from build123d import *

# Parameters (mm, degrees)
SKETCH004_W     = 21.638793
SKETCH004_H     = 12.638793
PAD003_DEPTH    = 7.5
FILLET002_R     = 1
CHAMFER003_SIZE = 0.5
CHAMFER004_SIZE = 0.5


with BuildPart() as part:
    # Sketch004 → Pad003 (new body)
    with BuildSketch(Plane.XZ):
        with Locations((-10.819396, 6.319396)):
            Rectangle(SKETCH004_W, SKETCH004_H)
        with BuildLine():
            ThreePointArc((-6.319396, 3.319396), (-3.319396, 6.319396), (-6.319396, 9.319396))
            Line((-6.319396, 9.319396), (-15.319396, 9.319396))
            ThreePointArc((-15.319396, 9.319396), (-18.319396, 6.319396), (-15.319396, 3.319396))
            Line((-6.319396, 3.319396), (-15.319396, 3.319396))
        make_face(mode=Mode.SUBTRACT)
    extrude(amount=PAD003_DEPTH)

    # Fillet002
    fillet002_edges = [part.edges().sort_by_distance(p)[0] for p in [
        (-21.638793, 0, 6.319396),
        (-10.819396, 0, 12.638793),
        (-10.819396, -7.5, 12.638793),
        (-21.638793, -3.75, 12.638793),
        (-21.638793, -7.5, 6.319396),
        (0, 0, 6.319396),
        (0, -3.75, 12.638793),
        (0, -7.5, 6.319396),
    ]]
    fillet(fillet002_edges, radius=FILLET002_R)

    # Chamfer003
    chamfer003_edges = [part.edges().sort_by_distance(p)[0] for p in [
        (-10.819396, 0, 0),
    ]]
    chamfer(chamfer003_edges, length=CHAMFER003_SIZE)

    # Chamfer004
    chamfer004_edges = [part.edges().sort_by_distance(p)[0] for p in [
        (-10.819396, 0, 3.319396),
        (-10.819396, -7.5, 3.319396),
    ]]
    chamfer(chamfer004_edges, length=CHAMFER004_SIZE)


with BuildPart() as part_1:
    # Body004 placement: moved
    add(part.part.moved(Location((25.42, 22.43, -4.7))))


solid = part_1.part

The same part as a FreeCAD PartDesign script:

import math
import FreeCAD as App
import Part
import Sketcher
from FreeCAD import Vector
Q = App.Units.Quantity


def edges_at(feature, points):
    """Names of the edges that pass closest to the given points."""
    edges = feature.Shape.Edges
    near = lambda p: min(range(len(edges)), key=lambda i: edges[i].distToShape(Part.Vertex(*p))[0])
    return sorted({f"Edge{near(p) + 1}" for p in points})


def add_polygon(sketch, points):
    """Adds a closed chain of lines whose ends are joined by coincident constraints."""
    first, n = sketch.GeometryCount, len(points)
    for a, b in zip(points, points[1:] + points[:1]):
        sketch.addGeometry(Part.LineSegment(App.Vector(*a, 0), App.Vector(*b, 0)), False)
    for i in range(n):
        sketch.addConstraint(Sketcher.Constraint("Coincident", first + i, 2, first + (i + 1) % n, 1))

doc = App.newDocument("Part")
body = doc.addObject("PartDesign::Body", "Body")

sketch1 = body.newObject("Sketcher::SketchObject", "Sketch")
sketch1.AttachmentSupport = (doc.getObject("XZ_Plane"), [""])
sketch1.MapMode = "FlatFace"
add_polygon(sketch1, [(-21.6, 12.6), (-21.6, 0), (0, 0), (0, 12.6)])
sketch1.addGeometry(Part.ArcOfCircle(Part.Circle(Vector(-6.3, 6.3, 0), Vector(0, 0, 1), 3), math.radians(-90), math.radians(90)), False)
sketch1.addGeometry(Part.LineSegment(Vector(-6.3, 3.3, 0), Vector(-15.3, 3.3, 0)), False)
sketch1.addGeometry(Part.ArcOfCircle(Part.Circle(Vector(-15.3, 6.3, 0), Vector(0, 0, 1), 3), math.radians(90), math.radians(270)), False)
sketch1.addGeometry(Part.LineSegment(Vector(-15.3, 9.3, 0), Vector(-6.3, 9.3, 0)), False)
sketch1.addConstraint(Sketcher.Constraint("Tangent", 4, 1, 5, 1))
sketch1.addConstraint(Sketcher.Constraint("Tangent", 5, 2, 6, 2))
sketch1.addConstraint(Sketcher.Constraint("Tangent", 6, 1, 7, 1))
sketch1.addConstraint(Sketcher.Constraint("Tangent", 7, 2, 4, 2))
sketch1.addConstraint(Sketcher.Constraint("Vertical", 0))
sketch1.addConstraint(Sketcher.Constraint("Horizontal", 1))
sketch1.addConstraint(Sketcher.Constraint("Vertical", 2))
sketch1.addConstraint(Sketcher.Constraint("Horizontal", 3))
sketch1.addConstraint(Sketcher.Constraint("Horizontal", 5))
sketch1.addConstraint(Sketcher.Constraint("Horizontal", 7))
sketch1.addConstraint(Sketcher.Constraint("Coincident", 1, 2, -1, 1))
sketch1.addConstraint(Sketcher.Constraint("Radius", 4, Q("3 mm")))
sketch1.addConstraint(Sketcher.Constraint("DistanceX", 5, 2, 5, 1, Q("9 mm")))
sketch1.addConstraint(Sketcher.Constraint("DistanceX", 1, 1, 1, 2, Q("21.638793 mm")))
sketch1.addConstraint(Sketcher.Constraint("DistanceY", 0, 2, 0, 1, Q("12.638793 mm")))
sketch1.addConstraint(Sketcher.Constraint("DistanceX", 4, 3, -1, 1, Q("6.319396 mm")))
sketch1.addConstraint(Sketcher.Constraint("DistanceY", -1, 1, 4, 3, Q("6.319396 mm")))
pad1 = body.newObject("PartDesign::Pad", "Pad")
pad1.Profile = sketch1
pad1.Length = 7.5
doc.recompute()

fillet = body.newObject("PartDesign::Fillet", "Fillet")
fillet.Base = (pad1, edges_at(pad1, [
    (-21.639, 0, 6.319),
    (-10.819, 0, 12.639),
    (-10.819, -7.5, 12.639),
    (-21.639, -3.75, 12.639),
    (-21.639, -7.5, 6.319),
    (0, 0, 6.319),
    (0, -3.75, 12.639),
    (0, -7.5, 6.319),
]))
fillet.Radius = 1
doc.recompute()

chamfer = body.newObject("PartDesign::Chamfer", "Chamfer")
chamfer.Base = (fillet, edges_at(fillet, [(-10.819, 0, 0)]))
chamfer.Size = 0.5
doc.recompute()

chamfer2 = body.newObject("PartDesign::Chamfer", "Chamfer001")
chamfer2.Base = (chamfer, edges_at(chamfer, [(-10.819, 0, 3.319), (-10.819, -7.5, 3.319)]))
chamfer2.Size = 0.5
body2 = doc.addObject("PartDesign::Body", "Body001")
doc.recompute()

body.Placement = App.Placement(Vector(25.42, 22.43, -4.7), App.Rotation(Vector(0, 0, 1), 0))
boolean = body2.newObject("PartDesign::Boolean", "Boolean")
boolean.Type = "Fuse"
boolean.addObjects([body])

doc.recompute()
